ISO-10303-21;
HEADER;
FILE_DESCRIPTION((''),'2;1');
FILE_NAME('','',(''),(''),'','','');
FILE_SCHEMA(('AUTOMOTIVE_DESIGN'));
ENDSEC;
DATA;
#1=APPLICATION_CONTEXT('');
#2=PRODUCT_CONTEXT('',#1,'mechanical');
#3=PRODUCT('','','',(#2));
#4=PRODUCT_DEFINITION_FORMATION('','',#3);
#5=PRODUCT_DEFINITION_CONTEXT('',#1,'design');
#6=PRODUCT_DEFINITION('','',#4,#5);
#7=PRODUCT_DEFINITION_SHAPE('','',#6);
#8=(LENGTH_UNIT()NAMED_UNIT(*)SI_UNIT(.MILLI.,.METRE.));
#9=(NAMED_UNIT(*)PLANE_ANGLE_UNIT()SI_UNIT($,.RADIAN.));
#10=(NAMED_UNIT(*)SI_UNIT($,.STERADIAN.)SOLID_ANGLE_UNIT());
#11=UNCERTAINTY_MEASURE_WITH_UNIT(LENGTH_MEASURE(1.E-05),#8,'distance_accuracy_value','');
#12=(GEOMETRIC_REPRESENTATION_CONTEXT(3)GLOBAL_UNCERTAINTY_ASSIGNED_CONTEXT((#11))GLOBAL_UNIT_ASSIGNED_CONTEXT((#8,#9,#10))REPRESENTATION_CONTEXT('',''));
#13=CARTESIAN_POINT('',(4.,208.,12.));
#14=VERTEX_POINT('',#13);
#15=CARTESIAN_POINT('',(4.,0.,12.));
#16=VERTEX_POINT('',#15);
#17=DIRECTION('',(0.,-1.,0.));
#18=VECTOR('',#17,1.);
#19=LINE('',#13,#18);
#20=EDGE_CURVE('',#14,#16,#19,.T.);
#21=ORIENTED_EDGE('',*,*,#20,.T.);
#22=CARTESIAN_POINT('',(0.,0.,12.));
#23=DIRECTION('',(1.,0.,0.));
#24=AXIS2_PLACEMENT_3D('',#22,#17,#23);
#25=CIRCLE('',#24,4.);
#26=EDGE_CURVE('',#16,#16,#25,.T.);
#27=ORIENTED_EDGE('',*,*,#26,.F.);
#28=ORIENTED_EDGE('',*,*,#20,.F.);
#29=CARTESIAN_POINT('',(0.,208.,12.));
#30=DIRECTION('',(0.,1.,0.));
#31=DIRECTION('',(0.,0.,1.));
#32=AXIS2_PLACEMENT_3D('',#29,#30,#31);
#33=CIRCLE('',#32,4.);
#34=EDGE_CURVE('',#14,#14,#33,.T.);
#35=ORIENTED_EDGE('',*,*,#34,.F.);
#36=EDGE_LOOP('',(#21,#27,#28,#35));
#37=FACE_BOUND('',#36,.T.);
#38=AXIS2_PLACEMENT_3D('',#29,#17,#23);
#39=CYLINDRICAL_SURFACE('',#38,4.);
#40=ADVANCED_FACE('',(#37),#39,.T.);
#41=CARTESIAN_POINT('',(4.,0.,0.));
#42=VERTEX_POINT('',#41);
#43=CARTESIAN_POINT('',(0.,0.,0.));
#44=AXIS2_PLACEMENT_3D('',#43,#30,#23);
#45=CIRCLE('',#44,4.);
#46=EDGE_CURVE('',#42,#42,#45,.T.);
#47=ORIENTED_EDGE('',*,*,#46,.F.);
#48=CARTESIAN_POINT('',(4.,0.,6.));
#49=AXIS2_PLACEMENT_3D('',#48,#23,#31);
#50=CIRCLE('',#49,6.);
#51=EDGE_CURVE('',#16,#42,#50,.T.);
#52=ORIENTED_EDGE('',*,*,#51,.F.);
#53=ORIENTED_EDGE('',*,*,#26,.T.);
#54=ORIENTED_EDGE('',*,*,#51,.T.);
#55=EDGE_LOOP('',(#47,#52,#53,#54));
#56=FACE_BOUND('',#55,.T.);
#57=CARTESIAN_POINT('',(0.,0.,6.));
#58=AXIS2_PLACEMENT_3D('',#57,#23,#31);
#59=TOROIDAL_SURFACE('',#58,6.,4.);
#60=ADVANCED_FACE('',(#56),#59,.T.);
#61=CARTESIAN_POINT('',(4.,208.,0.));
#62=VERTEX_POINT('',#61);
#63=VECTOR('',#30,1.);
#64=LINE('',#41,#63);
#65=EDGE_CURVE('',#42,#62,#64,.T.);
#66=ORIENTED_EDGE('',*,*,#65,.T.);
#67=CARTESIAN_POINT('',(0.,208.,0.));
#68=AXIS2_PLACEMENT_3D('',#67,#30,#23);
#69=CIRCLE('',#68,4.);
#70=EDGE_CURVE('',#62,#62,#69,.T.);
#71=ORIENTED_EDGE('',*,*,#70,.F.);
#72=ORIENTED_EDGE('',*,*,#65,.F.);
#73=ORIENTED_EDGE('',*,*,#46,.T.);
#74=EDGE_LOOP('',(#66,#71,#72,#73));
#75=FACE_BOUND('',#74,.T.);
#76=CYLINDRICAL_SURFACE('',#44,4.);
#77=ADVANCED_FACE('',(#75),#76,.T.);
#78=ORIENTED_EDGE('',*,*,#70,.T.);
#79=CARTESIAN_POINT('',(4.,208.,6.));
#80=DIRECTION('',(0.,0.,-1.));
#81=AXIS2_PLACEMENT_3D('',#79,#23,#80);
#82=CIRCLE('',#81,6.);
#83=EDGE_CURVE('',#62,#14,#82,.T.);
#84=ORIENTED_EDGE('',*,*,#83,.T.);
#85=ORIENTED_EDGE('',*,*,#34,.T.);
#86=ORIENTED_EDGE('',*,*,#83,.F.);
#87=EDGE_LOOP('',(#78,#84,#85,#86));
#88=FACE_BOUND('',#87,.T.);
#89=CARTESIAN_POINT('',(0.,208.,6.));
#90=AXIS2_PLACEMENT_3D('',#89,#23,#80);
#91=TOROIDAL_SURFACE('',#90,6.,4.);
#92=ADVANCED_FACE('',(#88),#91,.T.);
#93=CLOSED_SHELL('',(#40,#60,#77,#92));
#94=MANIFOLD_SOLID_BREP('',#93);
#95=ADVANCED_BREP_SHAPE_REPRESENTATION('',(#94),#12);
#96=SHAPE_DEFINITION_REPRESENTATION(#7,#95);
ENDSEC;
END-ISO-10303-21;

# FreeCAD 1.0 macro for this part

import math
import FreeCAD as App
import Part
import Sketcher
Q = App.Units.Quantity

doc = App.newDocument("Part")
body = doc.addObject("PartDesign::Body", "Body")

sketch1 = body.newObject("Sketcher::SketchObject", "Sketch")
sketch1.AttachmentSupport = (doc.getObject("XZ_Plane"), [""])
sketch1.MapMode = "FlatFace"
sketch1.addGeometry(Part.Circle(App.Vector(0, 0, 0), App.Vector(0, 0, 1), 4), False)
sketch1.addConstraint([
    Sketcher.Constraint("Coincident", 0, 3, -1, 1),
    Sketcher.Constraint("Diameter", 0, Q("8 mm")),
])

sketch2 = body.newObject("Sketcher::SketchObject", "Sketch001")
sketch2.AttachmentSupport = (doc.getObject("YZ_Plane"), [""])
sketch2.MapMode = "FlatFace"
sketch2.addGeometry([
    Part.LineSegment(App.Vector(0, 0, 0), App.Vector(208, 0, 0)),
    Part.ArcOfCircle(Part.Circle(App.Vector(208, 6, 0), App.Vector(0, 0, 1), 6), math.radians(-90), math.radians(90)),
    Part.LineSegment(App.Vector(208, 12, 0), App.Vector(0, 12, 0)),
    Part.ArcOfCircle(Part.Circle(App.Vector(0, 6, 0), App.Vector(0, 0, 1), 6), math.radians(90), math.radians(270)),
], False)
sketch2.addConstraint([
    Sketcher.Constraint("Tangent", 0, 2, 1, 1),
    Sketcher.Constraint("Tangent", 1, 2, 2, 1),
    Sketcher.Constraint("Tangent", 2, 2, 3, 1),
    Sketcher.Constraint("Tangent", 3, 2, 0, 1),
    Sketcher.Constraint("Horizontal", 0),
    Sketcher.Constraint("Horizontal", 2),
    Sketcher.Constraint("Coincident", 3, 2, -1, 1),
    Sketcher.Constraint("Radius", 1, Q("6 mm")),
    Sketcher.Constraint("DistanceX", 0, 1, 0, 2, Q("208 mm")),
])
doc.recompute()

additivepipe = body.newObject("PartDesign::AdditivePipe", "AdditivePipe")
additivepipe.Profile = sketch1
additivepipe.Spine = (sketch2, ["Edge1", "Edge2", "Edge3", "Edge4"])

doc.recompute()
